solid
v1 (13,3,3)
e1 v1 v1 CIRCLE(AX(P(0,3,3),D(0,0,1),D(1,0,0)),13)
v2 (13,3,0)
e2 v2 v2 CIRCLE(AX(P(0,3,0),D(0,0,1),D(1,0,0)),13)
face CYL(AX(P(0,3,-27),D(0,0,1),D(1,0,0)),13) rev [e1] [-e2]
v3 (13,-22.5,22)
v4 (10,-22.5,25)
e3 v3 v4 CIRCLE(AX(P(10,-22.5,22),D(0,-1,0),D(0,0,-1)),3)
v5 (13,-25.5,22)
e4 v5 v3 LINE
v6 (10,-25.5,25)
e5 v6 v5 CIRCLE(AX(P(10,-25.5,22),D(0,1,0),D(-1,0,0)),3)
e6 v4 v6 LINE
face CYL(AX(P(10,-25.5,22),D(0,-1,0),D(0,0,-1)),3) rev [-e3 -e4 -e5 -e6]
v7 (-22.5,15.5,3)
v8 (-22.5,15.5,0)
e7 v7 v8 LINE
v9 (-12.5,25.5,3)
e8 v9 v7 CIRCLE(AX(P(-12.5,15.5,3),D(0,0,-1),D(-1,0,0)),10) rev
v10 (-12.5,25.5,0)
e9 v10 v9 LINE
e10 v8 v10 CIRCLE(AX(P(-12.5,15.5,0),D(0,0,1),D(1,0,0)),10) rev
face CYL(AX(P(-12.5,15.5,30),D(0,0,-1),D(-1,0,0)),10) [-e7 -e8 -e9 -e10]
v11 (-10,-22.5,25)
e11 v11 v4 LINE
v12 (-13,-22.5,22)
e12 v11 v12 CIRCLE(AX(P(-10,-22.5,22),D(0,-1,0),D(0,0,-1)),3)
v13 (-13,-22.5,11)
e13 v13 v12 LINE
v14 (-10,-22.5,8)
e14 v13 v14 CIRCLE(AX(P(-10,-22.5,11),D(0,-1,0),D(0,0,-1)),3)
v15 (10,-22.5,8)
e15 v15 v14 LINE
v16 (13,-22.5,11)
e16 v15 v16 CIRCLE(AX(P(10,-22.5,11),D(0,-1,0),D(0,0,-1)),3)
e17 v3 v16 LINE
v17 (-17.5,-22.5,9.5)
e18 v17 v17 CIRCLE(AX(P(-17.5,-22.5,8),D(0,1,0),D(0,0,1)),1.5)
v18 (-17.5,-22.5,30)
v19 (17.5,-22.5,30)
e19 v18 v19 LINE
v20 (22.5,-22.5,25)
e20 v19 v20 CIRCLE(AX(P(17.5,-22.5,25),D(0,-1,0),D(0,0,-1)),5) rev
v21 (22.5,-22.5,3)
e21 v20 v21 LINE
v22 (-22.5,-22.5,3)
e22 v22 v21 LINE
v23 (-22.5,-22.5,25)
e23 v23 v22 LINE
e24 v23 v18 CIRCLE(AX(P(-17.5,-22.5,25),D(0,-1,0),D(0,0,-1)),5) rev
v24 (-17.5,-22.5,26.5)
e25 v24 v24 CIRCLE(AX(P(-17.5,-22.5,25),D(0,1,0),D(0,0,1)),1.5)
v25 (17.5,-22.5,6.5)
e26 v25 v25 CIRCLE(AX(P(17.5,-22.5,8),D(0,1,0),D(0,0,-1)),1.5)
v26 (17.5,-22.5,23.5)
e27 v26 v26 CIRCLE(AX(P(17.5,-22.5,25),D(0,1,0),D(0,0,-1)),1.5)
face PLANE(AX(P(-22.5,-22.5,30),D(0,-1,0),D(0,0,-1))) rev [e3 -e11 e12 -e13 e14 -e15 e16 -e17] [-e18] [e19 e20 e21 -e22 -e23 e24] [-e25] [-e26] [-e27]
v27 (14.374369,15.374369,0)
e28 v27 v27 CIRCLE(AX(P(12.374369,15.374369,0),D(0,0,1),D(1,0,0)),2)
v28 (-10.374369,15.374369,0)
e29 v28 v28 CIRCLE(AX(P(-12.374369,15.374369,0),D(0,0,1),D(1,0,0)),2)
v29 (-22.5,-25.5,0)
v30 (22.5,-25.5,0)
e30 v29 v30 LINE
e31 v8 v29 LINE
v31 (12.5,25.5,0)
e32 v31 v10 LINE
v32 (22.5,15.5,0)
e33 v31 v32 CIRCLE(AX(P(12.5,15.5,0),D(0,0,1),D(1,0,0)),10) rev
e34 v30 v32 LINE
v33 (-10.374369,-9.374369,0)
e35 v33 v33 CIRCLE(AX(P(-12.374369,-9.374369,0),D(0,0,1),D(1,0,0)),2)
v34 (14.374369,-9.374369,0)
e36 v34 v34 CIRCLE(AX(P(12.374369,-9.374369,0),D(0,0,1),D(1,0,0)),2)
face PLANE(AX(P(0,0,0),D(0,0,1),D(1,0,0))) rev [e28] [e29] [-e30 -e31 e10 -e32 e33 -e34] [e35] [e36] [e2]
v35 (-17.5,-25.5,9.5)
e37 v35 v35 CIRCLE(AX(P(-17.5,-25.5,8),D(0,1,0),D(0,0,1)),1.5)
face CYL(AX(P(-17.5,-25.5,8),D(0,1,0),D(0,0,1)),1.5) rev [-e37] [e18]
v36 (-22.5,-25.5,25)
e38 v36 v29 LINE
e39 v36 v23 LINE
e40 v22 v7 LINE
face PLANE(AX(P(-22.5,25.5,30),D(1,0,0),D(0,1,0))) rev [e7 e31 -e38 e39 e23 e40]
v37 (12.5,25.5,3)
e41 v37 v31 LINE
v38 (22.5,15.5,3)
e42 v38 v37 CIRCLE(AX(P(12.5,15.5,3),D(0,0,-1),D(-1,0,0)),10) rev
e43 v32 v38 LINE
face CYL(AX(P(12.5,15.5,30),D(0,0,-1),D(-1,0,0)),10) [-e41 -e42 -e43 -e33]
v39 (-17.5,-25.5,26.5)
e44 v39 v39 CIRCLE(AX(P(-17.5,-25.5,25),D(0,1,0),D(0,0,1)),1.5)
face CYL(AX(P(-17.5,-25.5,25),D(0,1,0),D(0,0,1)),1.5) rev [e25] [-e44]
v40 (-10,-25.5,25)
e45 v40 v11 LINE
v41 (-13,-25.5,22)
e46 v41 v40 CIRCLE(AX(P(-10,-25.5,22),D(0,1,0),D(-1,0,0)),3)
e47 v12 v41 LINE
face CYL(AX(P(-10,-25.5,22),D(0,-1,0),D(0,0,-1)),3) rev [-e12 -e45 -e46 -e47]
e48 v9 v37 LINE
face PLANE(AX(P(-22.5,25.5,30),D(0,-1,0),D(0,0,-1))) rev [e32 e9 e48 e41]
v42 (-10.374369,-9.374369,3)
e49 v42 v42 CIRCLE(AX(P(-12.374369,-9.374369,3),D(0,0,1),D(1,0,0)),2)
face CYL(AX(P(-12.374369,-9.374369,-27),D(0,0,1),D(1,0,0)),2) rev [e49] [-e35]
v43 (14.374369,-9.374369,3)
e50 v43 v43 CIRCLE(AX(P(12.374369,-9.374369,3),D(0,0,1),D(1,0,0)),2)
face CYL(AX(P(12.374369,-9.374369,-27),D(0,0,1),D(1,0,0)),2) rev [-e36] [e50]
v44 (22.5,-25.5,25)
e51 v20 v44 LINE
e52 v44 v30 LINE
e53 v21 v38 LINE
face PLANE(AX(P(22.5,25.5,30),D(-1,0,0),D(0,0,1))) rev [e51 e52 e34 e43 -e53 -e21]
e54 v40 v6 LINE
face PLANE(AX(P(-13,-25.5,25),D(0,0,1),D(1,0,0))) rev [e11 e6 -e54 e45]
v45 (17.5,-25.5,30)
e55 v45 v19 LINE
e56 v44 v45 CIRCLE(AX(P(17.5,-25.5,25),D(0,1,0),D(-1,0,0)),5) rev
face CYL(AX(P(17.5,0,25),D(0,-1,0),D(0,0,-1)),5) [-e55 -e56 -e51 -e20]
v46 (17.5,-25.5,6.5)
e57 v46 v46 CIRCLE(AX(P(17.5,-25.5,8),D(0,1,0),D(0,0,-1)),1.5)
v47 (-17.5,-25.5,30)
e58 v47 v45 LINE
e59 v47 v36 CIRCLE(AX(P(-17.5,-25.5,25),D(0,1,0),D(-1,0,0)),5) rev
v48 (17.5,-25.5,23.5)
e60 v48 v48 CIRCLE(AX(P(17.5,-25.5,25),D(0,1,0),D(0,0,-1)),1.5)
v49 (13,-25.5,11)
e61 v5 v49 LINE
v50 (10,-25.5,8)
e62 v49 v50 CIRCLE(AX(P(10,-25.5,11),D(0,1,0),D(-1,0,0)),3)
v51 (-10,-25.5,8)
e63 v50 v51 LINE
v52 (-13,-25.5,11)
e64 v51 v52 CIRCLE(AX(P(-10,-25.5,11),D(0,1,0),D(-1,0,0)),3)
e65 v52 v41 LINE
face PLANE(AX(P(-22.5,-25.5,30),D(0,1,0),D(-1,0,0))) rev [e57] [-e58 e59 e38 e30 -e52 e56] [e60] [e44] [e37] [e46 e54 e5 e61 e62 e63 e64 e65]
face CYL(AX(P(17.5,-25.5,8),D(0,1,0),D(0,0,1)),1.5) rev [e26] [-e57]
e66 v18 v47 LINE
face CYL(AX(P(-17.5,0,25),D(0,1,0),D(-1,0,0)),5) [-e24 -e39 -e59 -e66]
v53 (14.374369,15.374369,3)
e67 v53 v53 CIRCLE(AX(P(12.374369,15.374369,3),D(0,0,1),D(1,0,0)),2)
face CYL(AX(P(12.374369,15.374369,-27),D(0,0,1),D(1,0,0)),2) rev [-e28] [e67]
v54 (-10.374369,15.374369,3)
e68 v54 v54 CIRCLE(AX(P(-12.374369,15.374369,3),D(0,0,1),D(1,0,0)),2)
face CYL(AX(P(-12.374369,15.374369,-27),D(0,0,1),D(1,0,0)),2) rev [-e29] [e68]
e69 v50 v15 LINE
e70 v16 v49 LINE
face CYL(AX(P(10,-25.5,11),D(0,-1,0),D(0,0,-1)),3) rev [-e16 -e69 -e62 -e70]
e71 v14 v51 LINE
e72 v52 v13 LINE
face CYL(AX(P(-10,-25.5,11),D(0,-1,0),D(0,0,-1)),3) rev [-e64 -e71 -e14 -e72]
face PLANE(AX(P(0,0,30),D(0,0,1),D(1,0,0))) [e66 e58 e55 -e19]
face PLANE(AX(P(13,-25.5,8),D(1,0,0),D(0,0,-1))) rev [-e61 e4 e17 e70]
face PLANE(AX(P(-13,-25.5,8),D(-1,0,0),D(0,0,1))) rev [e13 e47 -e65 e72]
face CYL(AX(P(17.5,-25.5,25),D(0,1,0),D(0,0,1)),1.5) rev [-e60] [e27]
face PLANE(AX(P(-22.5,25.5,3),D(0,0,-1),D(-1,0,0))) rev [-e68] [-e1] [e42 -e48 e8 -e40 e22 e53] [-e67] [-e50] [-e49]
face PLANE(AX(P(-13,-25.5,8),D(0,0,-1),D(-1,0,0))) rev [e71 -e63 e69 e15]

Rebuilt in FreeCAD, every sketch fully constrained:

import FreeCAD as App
import Part
import Sketcher
Q = App.Units.Quantity


def edges_at(feature, points):
    """Names of the edges that pass closest to the given points."""
    edges = feature.Shape.Edges
    near = lambda p: min(range(len(edges)), key=lambda i: edges[i].distToShape(Part.Vertex(*p))[0])
    return sorted({f"Edge{near(p) + 1}" for p in points})

doc = App.newDocument("Part")
body = doc.addObject("PartDesign::Body", "Body")

# Sketch on XY plane
sketch1 = doc.addObject("Sketcher::SketchObject", "Sketch")
body.addObject(sketch1)
sketch1.AttachmentSupport = (doc.XY_Plane, [""])
sketch1.MapMode = "FlatFace"
sketch1.addGeometry([
    Part.LineSegment(App.Vector(-22, 26, 0), App.Vector(-22, -26, 0)),
    Part.LineSegment(App.Vector(-22, -26, 0), App.Vector(22, -26, 0)),
    Part.LineSegment(App.Vector(22, -26, 0), App.Vector(22, 26, 0)),
    Part.LineSegment(App.Vector(22, 26, 0), App.Vector(-22, 26, 0)),
], False)
sketch1.addConstraint([
    Sketcher.Constraint("Coincident", 0, 2, 1, 1),
    Sketcher.Constraint("Coincident", 1, 2, 2, 1),
    Sketcher.Constraint("Coincident", 2, 2, 3, 1),
    Sketcher.Constraint("Coincident", 3, 2, 0, 1),
    Sketcher.Constraint("Vertical", 0),
    Sketcher.Constraint("Horizontal", 1),
    Sketcher.Constraint("Vertical", 2),
    Sketcher.Constraint("Horizontal", 3),
    Sketcher.Constraint("Symmetric", 0, 2, 2, 2, -1, 1),
    Sketcher.Constraint("DistanceX", 1, 1, 1, 2, Q("45 mm")),
    Sketcher.Constraint("DistanceY", 0, 2, 0, 1, Q("51 mm")),
])
pad1 = doc.addObject("PartDesign::Pad", "Pad")
body.addObject(pad1)
pad1.Profile = sketch1
pad1.Length = 30

# Sketch on YZ plane
sketch2 = doc.addObject("Sketcher::SketchObject", "Sketch001")
body.addObject(sketch2)
sketch2.AttachmentSupport = (doc.YZ_Plane, [""])
sketch2.MapMode = "FlatFace"
sketch2.AttachmentOffset = App.Placement(App.Vector(0, 0, 22.5), App.Rotation())
sketch2.addGeometry([
    Part.LineSegment(App.Vector(26, 30, 0), App.Vector(-22, 30, 0)),
    Part.LineSegment(App.Vector(-22, 30, 0), App.Vector(-22, 3, 0)),
    Part.LineSegment(App.Vector(-22, 3, 0), App.Vector(26, 3, 0)),
    Part.LineSegment(App.Vector(26, 3, 0), App.Vector(26, 30, 0)),
], False)
sketch2.addConstraint([
    Sketcher.Constraint("Coincident", 0, 2, 1, 1),
    Sketcher.Constraint("Coincident", 1, 2, 2, 1),
    Sketcher.Constraint("Coincident", 2, 2, 3, 1),
    Sketcher.Constraint("Coincident", 3, 2, 0, 1),
    Sketcher.Constraint("Horizontal", 0),
    Sketcher.Constraint("Vertical", 1),
    Sketcher.Constraint("Horizontal", 2),
    Sketcher.Constraint("Vertical", 3),
    Sketcher.Constraint("DistanceX", 0, 2, 0, 1, Q("48 mm")),
    Sketcher.Constraint("DistanceY", 1, 2, 1, 1, Q("27 mm")),
    Sketcher.Constraint("DistanceY", -1, 1, 0, 2, Q("30 mm")),
    Sketcher.Constraint("DistanceX", 0, 2, -1, 1, Q("22.5 mm")),
])
pocket1 = doc.addObject("PartDesign::Pocket", "Pocket")
body.addObject(pocket1)
pocket1.Profile = sketch2
pocket1.Type = "ThroughAll"

# Sketch on XZ plane
sketch3 = doc.addObject("Sketcher::SketchObject", "Sketch002")
body.addObject(sketch3)
sketch3.AttachmentSupport = (doc.XZ_Plane, [""])
sketch3.MapMode = "FlatFace"
sketch3.AttachmentOffset = App.Placement(App.Vector(0, 0, 22.5), App.Rotation())
sketch3.addGeometry([
    Part.Circle(App.Vector(-17.5, 8, 0), App.Vector(0, 0, 1), 1.5),  # 0
    Part.Circle(App.Vector(-17.5, 25, 0), App.Vector(0, 0, 1), 1.5),  # 1
    Part.Circle(App.Vector(17.5, 25, 0), App.Vector(0, 0, 1), 1.5),  # 2
    Part.Circle(App.Vector(17.5, 8, 0), App.Vector(0, 0, 1), 1.5),  # 3
    Part.LineSegment(App.Vector(-13, 8, 0), App.Vector(-13, 25, 0)),  # 4
    Part.LineSegment(App.Vector(-13, 25, 0), App.Vector(13, 25, 0)),  # 5
    Part.LineSegment(App.Vector(13, 25, 0), App.Vector(13, 8, 0)),  # 6
    Part.LineSegment(App.Vector(13, 8, 0), App.Vector(-13, 8, 0)),  # 7
], False)
sketch3.addConstraint([
    Sketcher.Constraint("Coincident", 4, 2, 5, 1),
    Sketcher.Constraint("Coincident", 5, 2, 6, 1),
    Sketcher.Constraint("Coincident", 6, 2, 7, 1),
    Sketcher.Constraint("Coincident", 7, 2, 4, 1),
    Sketcher.Constraint("Vertical", 4),
    Sketcher.Constraint("Horizontal", 5),
    Sketcher.Constraint("Vertical", 6),
    Sketcher.Constraint("Horizontal", 7),
    Sketcher.Constraint("Equal", 0, 1),
    Sketcher.Constraint("Equal", 1, 2),
    Sketcher.Constraint("Equal", 2, 3),
    Sketcher.Constraint("Symmetric", 1, 3, 2, 3, -2),
    Sketcher.Constraint("Symmetric", 0, 3, 3, 3, -2),
    Sketcher.Constraint("Horizontal", 2, 3, 4, 2),
    Sketcher.Constraint("Horizontal", 3, 3, 6, 2),
    Sketcher.Constraint("Vertical", 0, 3, 1, 3),
    Sketcher.Constraint("Diameter", 0, Q("3 mm")),
    Sketcher.Constraint("DistanceX", 5, 1, 5, 2, Q("26 mm")),
    Sketcher.Constraint("DistanceY", 4, 1, 4, 2, Q("17 mm")),
    Sketcher.Constraint("DistanceY", -1, 1, 0, 3, Q("8 mm")),
    Sketcher.Constraint("DistanceX", 4, 2, -1, 1, Q("13 mm")),
    Sketcher.Constraint("DistanceX", 1, 3, 2, 3, Q("35 mm")),
])
pocket2 = doc.addObject("PartDesign::Pocket", "Pocket001")
body.addObject(pocket2)
pocket2.Profile = sketch3
pocket2.Type = "ThroughAll"
pocket2.Reversed = True
doc.recompute()

fillet = doc.addObject("PartDesign::Fillet", "Fillet")
body.addObject(fillet)
fillet.Base = (pocket2, edges_at(pocket2, [
    (13, -24, 8),
    (13, -24, 25),
    (-13, -24, 25),
    (-13, -24, 8),
]))
fillet.Radius = 3

# Sketch on XY plane
sketch4 = doc.addObject("Sketcher::SketchObject", "Sketch003")
body.addObject(sketch4)
sketch4.AttachmentSupport = (doc.XY_Plane, [""])
sketch4.MapMode = "FlatFace"
sketch4.AttachmentOffset = App.Placement(App.Vector(0, 0, 3), App.Rotation())
sketch4.addGeometry([
    Part.Circle(App.Vector(0, 3, 0), App.Vector(0, 0, 1), 13),  # 0
    Part.Circle(App.Vector(12.4, 15.4, 0), App.Vector(0, 0, 1), 2),  # 1
    Part.Circle(App.Vector(-12.4, 15.4, 0), App.Vector(0, 0, 1), 2),  # 2
    Part.Circle(App.Vector(-12.4, -9.4, 0), App.Vector(0, 0, 1), 2),  # 3
    Part.Circle(App.Vector(12.4, -9.4, 0), App.Vector(0, 0, 1), 2),  # 4
], False)
sketch4.addConstraint([
    Sketcher.Constraint("Equal", 1, 2),
    Sketcher.Constraint("Equal", 2, 3),
    Sketcher.Constraint("Equal", 3, 4),
    Sketcher.Constraint("Symmetric", 1, 3, 2, 3, -2),
    Sketcher.Constraint("Symmetric", 3, 3, 4, 3, -2),
    Sketcher.Constraint("PointOnObject", 0, 3, -2),
    Sketcher.Constraint("Vertical", 2, 3, 3, 3),
    Sketcher.Constraint("Diameter", 0, Q("26 mm")),
    Sketcher.Constraint("Diameter", 1, Q("4 mm")),
    Sketcher.Constraint("DistanceY", -1, 1, 0, 3, Q("3 mm")),
    Sketcher.Constraint("DistanceX", -1, 1, 1, 3, Q("12.374369 mm")),
    Sketcher.Constraint("DistanceY", -1, 1, 1, 3, Q("15.374369 mm")),
    Sketcher.Constraint("DistanceY", 3, 3, -1, 1, Q("9.374369 mm")),
])
pocket3 = doc.addObject("PartDesign::Pocket", "Pocket002")
body.addObject(pocket3)
pocket3.Profile = sketch4
pocket3.Length = 30
doc.recompute()

fillet2 = doc.addObject("PartDesign::Fillet", "Fillet001")
body.addObject(fillet2)
fillet2.Base = (pocket3, edges_at(pocket3, [(-22.5, 25.5, 1.5), (22.5, 25.5, 1.5)]))
fillet2.Radius = 10
doc.recompute()

fillet3 = doc.addObject("PartDesign::Fillet", "Fillet002")
body.addObject(fillet3)
fillet3.Base = (fillet2, edges_at(fillet2, [(-22.5, -24, 30), (22.5, -24, 30)]))
fillet3.Radius = 5

doc.recompute()
